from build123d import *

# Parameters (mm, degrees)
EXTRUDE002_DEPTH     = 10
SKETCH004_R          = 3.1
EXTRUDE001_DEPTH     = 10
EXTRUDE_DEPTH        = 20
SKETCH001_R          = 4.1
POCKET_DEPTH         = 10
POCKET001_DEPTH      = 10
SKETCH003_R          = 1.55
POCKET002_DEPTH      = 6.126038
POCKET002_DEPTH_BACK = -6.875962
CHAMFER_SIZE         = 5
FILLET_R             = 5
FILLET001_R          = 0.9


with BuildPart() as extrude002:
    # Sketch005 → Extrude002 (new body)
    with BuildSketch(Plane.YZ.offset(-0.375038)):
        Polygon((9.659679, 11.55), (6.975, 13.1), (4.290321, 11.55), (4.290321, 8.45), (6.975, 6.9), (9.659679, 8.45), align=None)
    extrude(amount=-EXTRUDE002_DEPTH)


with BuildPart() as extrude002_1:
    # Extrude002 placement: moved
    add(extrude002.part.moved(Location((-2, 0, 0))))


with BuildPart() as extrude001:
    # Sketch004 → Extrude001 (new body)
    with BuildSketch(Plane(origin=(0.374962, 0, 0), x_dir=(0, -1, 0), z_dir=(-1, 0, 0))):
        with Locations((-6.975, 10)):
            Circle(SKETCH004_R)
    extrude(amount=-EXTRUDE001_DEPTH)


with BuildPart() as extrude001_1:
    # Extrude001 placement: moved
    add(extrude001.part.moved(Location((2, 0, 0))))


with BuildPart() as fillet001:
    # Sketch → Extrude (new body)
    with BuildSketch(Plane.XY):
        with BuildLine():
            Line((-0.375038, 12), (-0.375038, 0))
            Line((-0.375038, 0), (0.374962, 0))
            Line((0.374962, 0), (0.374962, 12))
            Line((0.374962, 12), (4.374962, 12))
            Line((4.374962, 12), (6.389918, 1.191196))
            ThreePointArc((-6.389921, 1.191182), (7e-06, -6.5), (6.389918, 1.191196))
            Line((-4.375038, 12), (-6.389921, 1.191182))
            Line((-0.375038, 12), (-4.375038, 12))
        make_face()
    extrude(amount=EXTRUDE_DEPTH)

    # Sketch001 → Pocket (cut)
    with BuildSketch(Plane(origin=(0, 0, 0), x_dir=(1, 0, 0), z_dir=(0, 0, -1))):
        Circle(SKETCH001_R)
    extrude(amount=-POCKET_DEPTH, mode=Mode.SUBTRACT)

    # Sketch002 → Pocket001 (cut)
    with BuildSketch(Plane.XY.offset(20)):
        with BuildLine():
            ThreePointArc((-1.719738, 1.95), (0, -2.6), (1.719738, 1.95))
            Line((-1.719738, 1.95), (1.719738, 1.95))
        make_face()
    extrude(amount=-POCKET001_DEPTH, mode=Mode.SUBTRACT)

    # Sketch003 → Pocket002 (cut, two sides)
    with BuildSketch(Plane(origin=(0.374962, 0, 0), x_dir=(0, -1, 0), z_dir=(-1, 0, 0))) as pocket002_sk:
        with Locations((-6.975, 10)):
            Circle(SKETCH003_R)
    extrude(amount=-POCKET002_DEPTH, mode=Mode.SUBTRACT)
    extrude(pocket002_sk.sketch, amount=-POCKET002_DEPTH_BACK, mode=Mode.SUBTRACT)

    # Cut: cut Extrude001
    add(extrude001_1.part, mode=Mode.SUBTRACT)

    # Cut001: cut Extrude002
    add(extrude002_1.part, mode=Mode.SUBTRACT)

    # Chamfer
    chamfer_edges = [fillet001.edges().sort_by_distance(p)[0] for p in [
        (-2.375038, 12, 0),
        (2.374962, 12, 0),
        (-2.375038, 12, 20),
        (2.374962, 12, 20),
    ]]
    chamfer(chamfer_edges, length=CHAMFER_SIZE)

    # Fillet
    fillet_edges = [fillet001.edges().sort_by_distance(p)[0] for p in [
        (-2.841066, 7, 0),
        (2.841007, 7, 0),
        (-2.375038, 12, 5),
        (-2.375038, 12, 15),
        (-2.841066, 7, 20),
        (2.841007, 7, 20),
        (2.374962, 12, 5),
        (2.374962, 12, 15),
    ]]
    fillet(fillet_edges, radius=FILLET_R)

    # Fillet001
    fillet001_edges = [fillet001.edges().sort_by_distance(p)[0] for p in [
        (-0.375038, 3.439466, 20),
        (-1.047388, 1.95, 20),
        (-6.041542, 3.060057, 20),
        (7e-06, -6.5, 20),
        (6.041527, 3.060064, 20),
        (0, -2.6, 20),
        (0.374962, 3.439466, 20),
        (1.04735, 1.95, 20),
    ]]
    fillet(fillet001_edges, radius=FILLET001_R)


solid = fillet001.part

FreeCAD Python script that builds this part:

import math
import FreeCAD as App
import Part
import Sketcher
from FreeCAD import Vector
Q = App.Units.Quantity


def edges_at(feature, points):
    """Names of the edges that pass closest to the given points."""
    edges = feature.Shape.Edges
    near = lambda p: min(range(len(edges)), key=lambda i: edges[i].distToShape(Part.Vertex(*p))[0])
    return sorted({f"Edge{near(p) + 1}" for p in points})

doc = App.newDocument("Part")
body = doc.addObject("PartDesign::Body", "Body")

# Sketch on YZ plane
sketch1 = body.newObject("Sketcher::SketchObject", "Sketch")
sketch1.AttachmentSupport = (doc.getObject("YZ_Plane"), [""])
sketch1.MapMode = "FlatFace"
sketch1.AttachmentOffset = App.Placement(Vector(0, 0, -0.375038), App.Rotation())
sketch1.addGeometry([
    Part.LineSegment(Vector(9.7, 11.6, 0), Vector(7, 13.1, 0)),  # 0
    Part.LineSegment(Vector(7, 13.1, 0), Vector(4.3, 11.6, 0)),  # 1
    Part.LineSegment(Vector(4.3, 11.6, 0), Vector(4.3, 8.4, 0)),  # 2
    Part.LineSegment(Vector(4.3, 8.4, 0), Vector(7, 6.9, 0)),  # 3
    Part.LineSegment(Vector(7, 6.9, 0), Vector(9.7, 8.4, 0)),  # 4
    Part.LineSegment(Vector(9.7, 8.4, 0), Vector(9.7, 11.6, 0)),  # 5
], False)
sketch1.addConstraint([
    Sketcher.Constraint("Coincident", 0, 2, 1, 1),
    Sketcher.Constraint("Coincident", 1, 2, 2, 1),
    Sketcher.Constraint("Coincident", 2, 2, 3, 1),
    Sketcher.Constraint("Coincident", 3, 2, 4, 1),
    Sketcher.Constraint("Coincident", 4, 2, 5, 1),
    Sketcher.Constraint("Coincident", 5, 2, 0, 1),
    Sketcher.Constraint("Vertical", 2),
    Sketcher.Constraint("Vertical", 5),
    Sketcher.Constraint("Parallel", 0, 3),
    Sketcher.Constraint("Parallel", 1, 4),
    Sketcher.Constraint("Horizontal", 2, 2, 4, 2),
    Sketcher.Constraint("Horizontal", 1, 2, 5, 2),
    Sketcher.Constraint("Vertical", 0, 2, 3, 2),
    Sketcher.Constraint("Angle", 0, Q("150.000002 deg")),
    Sketcher.Constraint("DistanceY", 2, 2, 2, 1, Q("3.1 mm")),
    Sketcher.Constraint("Distance", 0, Q("3.1 mm")),
    Sketcher.Constraint("DistanceY", -1, 1, 0, 2, Q("13.1 mm")),
    Sketcher.Constraint("DistanceX", -1, 1, 0, 2, Q("6.975 mm")),
])
pad1 = body.newObject("PartDesign::Pad", "Pad")
pad1.Profile = sketch1
pad1.Length = 10
pad1.Reversed = True
body2 = doc.addObject("PartDesign::Body", "Body001")
doc.recompute()

body.Placement = App.Placement(Vector(-2, 0, 0), App.Rotation(Vector(0, 0, 1), 0))
boolean = body2.newObject("PartDesign::Boolean", "Boolean")
boolean.Type = "Fuse"
boolean.addObjects([body])
body3 = doc.addObject("PartDesign::Body", "Body002")

# Sketch on YZ plane
sketch2 = body3.newObject("Sketcher::SketchObject", "Sketch001")
sketch2.AttachmentSupport = (doc.getObject("YZ_Plane002"), [""])
sketch2.MapMode = "FlatFace"
sketch2.AttachmentOffset = App.Placement(Vector(0, 0, 0.374962), App.Rotation())
sketch2.addGeometry(Part.Circle(Vector(7, 10, 0), Vector(0, 0, 1), 3.1), False)
sketch2.addConstraint([
    Sketcher.Constraint("Diameter", 0, Q("6.2 mm")),
    Sketcher.Constraint("DistanceY", -1, 1, 0, 3, Q("10 mm")),
    Sketcher.Constraint("DistanceX", -1, 1, 0, 3, Q("6.975 mm")),
])
pad2 = body3.newObject("PartDesign::Pad", "Pad001")
pad2.Profile = sketch2
pad2.Length = 10
body4 = doc.addObject("PartDesign::Body", "Body003")
doc.recompute()

body3.Placement = App.Placement(Vector(2, 0, 0), App.Rotation(Vector(0, 0, 1), 0))
boolean2 = body4.newObject("PartDesign::Boolean", "Boolean001")
boolean2.Type = "Fuse"
boolean2.addObjects([body3])
body5 = doc.addObject("PartDesign::Body", "Body004")

# Sketch on XY plane
sketch3 = body5.newObject("Sketcher::SketchObject", "Sketch002")
sketch3.AttachmentSupport = (doc.getObject("XY_Plane004"), [""])
sketch3.MapMode = "FlatFace"
sketch3.addGeometry([
    Part.LineSegment(Vector(-0.4, 0, 0), Vector(-0.4, 12, 0)),  # 0
    Part.LineSegment(Vector(-0.4, 12, 0), Vector(-4.4, 12, 0)),  # 1
    Part.LineSegment(Vector(-4.4, 12, 0), Vector(-6.4, 1.2, 0)),  # 2
    Part.ArcOfCircle(Part.Circle(Vector(0, 0, 0), Vector(0, 0, 1), 6.5), math.radians(169), math.radians(371)),  # 3
    Part.LineSegment(Vector(6.4, 1.2, 0), Vector(4.4, 12, 0)),  # 4
    Part.LineSegment(Vector(4.4, 12, 0), Vector(0.4, 12, 0)),  # 5
    Part.LineSegment(Vector(0.4, 12, 0), Vector(0.4, 0, 0)),  # 6
    Part.LineSegment(Vector(0.4, 0, 0), Vector(-0.4, 0, 0)),  # 7
], False)
sketch3.addConstraint([
    Sketcher.Constraint("Coincident", 0, 2, 1, 1),
    Sketcher.Constraint("Coincident", 1, 2, 2, 1),
    Sketcher.Constraint("Coincident", 2, 2, 3, 1),
    Sketcher.Constraint("Tangent", 3, 2, 4, 1),
    Sketcher.Constraint("Coincident", 4, 2, 5, 1),
    Sketcher.Constraint("Coincident", 5, 2, 6, 1),
    Sketcher.Constraint("Coincident", 6, 2, 7, 1),
    Sketcher.Constraint("Coincident", 7, 2, 0, 1),
    Sketcher.Constraint("Vertical", 0),
    Sketcher.Constraint("Horizontal", 1),
    Sketcher.Constraint("Horizontal", 5),
    Sketcher.Constraint("Vertical", 6),
    Sketcher.Constraint("Horizontal", 7),
    Sketcher.Constraint("Coincident", 3, 3, -1, 1),
    Sketcher.Constraint("PointOnObject", 6, 2, -1),
    Sketcher.Constraint("Horizontal", 1, 2, 4, 2),
    Sketcher.Constraint("Equal", 1, 5),
    Sketcher.Constraint("Equal", 2, 4),
    Sketcher.Constraint("Radius", 3, Q("6.5 mm")),
    Sketcher.Constraint("DistanceX", 1, 2, 1, 1, Q("4 mm")),
    Sketcher.Constraint("DistanceY", 0, 1, 0, 2, Q("12 mm")),
    Sketcher.Constraint("DistanceX", 7, 2, 7, 1, Q("0.75 mm")),
    Sketcher.Constraint("DistanceX", 2, 2, -1, 1, Q("6.389921 mm")),
])
pad3 = body5.newObject("PartDesign::Pad", "Pad002")
pad3.Profile = sketch3
pad3.Length = 20

# Sketch on XY plane
sketch4 = body5.newObject("Sketcher::SketchObject", "Sketch003")
sketch4.AttachmentSupport = (doc.getObject("XY_Plane004"), [""])
sketch4.MapMode = "FlatFace"
sketch4.addGeometry(Part.Circle(Vector(0, 0, 0), Vector(0, 0, 1), 4.1), False)
sketch4.addConstraint([
    Sketcher.Constraint("Coincident", 0, 3, -1, 1),
    Sketcher.Constraint("Diameter", 0, Q("8.2 mm")),
])
pocket1 = body5.newObject("PartDesign::Pocket", "Pocket")
pocket1.Profile = sketch4
pocket1.Length = 10
pocket1.Reversed = True

# Sketch on XY plane
sketch5 = body5.newObject("Sketcher::SketchObject", "Sketch004")
sketch5.AttachmentSupport = (doc.getObject("XY_Plane004"), [""])
sketch5.MapMode = "FlatFace"
sketch5.AttachmentOffset = App.Placement(Vector(0, 0, 20), App.Rotation())
sketch5.addGeometry([
    Part.ArcOfCircle(Part.Circle(Vector(0, 0, 0), Vector(0, 0, 1), 2.6), math.radians(131), math.radians(409)),
    Part.LineSegment(Vector(1.7, 1.9, 0), Vector(-1.7, 1.9, 0)),
], False)
sketch5.addConstraint([
    Sketcher.Constraint("Coincident", 0, 1, 1, 2),
    Sketcher.Constraint("Coincident", 1, 1, 0, 2),
    Sketcher.Constraint("Horizontal", 1),
    Sketcher.Constraint("Coincident", 0, 3, -1, 1),
    Sketcher.Constraint("Radius", 0, Q("2.6 mm")),
    Sketcher.Constraint("DistanceY", -1, 1, 0, 1, Q("1.95 mm")),
])
pocket2 = body5.newObject("PartDesign::Pocket", "Pocket001")
pocket2.Profile = sketch5
pocket2.Length = 10

# Sketch on YZ plane
sketch6 = body5.newObject("Sketcher::SketchObject", "Sketch005")
sketch6.AttachmentSupport = (doc.getObject("YZ_Plane004"), [""])
sketch6.MapMode = "FlatFace"
sketch6.AttachmentOffset = App.Placement(Vector(0, 0, 0.374962), App.Rotation())
sketch6.addGeometry(Part.Circle(Vector(7, 10, 0), Vector(0, 0, 1), 1.6), False)
sketch6.addConstraint([
    Sketcher.Constraint("Diameter", 0, Q("3.1 mm")),
    Sketcher.Constraint("DistanceY", -1, 1, 0, 3, Q("10 mm")),
    Sketcher.Constraint("DistanceX", -1, 1, 0, 3, Q("6.975 mm")),
])
pocket3 = body5.newObject("PartDesign::Pocket", "Pocket002")
pocket3.Profile = sketch6
pocket3.Type = "ThroughAll"
pocket3.Midplane = True
doc.recompute()

boolean3 = body5.newObject("PartDesign::Boolean", "Boolean002")
boolean3.Type = "Cut"
boolean3.addObjects([body4])
doc.recompute()

boolean4 = body5.newObject("PartDesign::Boolean", "Boolean003")
boolean4.Type = "Cut"
boolean4.addObjects([body2])
doc.recompute()

chamfer = body5.newObject("PartDesign::Chamfer", "Chamfer")
chamfer.Base = (boolean4, edges_at(boolean4, [
    (-2.375, 12, 0),
    (2.375, 12, 0),
    (-2.375, 12, 20),
    (2.375, 12, 20),
]))
chamfer.Size = 5
doc.recompute()

fillet = body5.newObject("PartDesign::Fillet", "Fillet")
fillet.Base = (chamfer, edges_at(chamfer, [
    (-2.841, 7, 0),
    (2.841, 7, 0),
    (-2.375, 12, 5),
    (-2.375, 12, 15),
    (-2.841, 7, 20),
    (2.841, 7, 20),
    (2.375, 12, 5),
    (2.375, 12, 15),
]))
fillet.Radius = 5
doc.recompute()

fillet2 = body5.newObject("PartDesign::Fillet", "Fillet001")
fillet2.Base = (fillet, edges_at(fillet, [
    (-0.375, 3.439, 20),
    (-1.047, 1.95, 20),
    (-6.042, 3.06, 20),
    (0, -6.5, 20),
    (6.042, 3.06, 20),
    (0, -2.6, 20),
    (0.375, 3.439, 20),
    (1.047, 1.95, 20),
]))
fillet2.Radius = 0.9

doc.recompute()
